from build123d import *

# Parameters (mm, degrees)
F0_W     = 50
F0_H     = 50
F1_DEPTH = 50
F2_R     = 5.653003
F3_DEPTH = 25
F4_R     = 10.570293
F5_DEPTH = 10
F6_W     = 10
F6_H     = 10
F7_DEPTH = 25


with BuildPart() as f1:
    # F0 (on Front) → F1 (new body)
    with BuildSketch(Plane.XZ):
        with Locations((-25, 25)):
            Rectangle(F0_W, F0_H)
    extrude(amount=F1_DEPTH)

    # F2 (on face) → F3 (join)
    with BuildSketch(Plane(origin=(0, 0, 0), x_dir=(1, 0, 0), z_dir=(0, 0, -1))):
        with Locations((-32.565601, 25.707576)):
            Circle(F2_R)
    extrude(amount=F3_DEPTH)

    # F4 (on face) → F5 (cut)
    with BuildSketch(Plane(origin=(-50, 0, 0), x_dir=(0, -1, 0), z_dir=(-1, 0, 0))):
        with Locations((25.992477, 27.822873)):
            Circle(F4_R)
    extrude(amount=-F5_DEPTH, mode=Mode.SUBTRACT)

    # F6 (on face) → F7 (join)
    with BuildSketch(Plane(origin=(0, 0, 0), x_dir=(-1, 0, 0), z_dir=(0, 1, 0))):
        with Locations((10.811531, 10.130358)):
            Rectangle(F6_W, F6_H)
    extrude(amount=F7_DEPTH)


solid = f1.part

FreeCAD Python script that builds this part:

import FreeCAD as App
import Part
import Sketcher
Q = App.Units.Quantity

doc = App.newDocument("Part")
body = doc.addObject("PartDesign::Body", "Body")

sketch1 = doc.addObject("Sketcher::SketchObject", "Sketch")
body.addObject(sketch1)
sketch1.AttachmentSupport = (doc.XZ_Plane, [""])
sketch1.MapMode = "FlatFace"
sketch1.addGeometry(Part.LineSegment(App.Vector(-50, 50, 0), App.Vector(-50, 0, 0)), False)
sketch1.addGeometry(Part.LineSegment(App.Vector(-50, 0, 0), App.Vector(0, 0, 0)), False)
sketch1.addGeometry(Part.LineSegment(App.Vector(0, 0, 0), App.Vector(0, 50, 0)), False)
sketch1.addGeometry(Part.LineSegment(App.Vector(0, 50, 0), App.Vector(-50, 50, 0)), False)
sketch1.addConstraint(Sketcher.Constraint("Coincident", 0, 2, 1, 1))
sketch1.addConstraint(Sketcher.Constraint("Coincident", 1, 2, 2, 1))
sketch1.addConstraint(Sketcher.Constraint("Coincident", 2, 2, 3, 1))
sketch1.addConstraint(Sketcher.Constraint("Coincident", 3, 2, 0, 1))
sketch1.addConstraint(Sketcher.Constraint("Vertical", 0))
sketch1.addConstraint(Sketcher.Constraint("Horizontal", 1))
sketch1.addConstraint(Sketcher.Constraint("Vertical", 2))
sketch1.addConstraint(Sketcher.Constraint("Horizontal", 3))
sketch1.addConstraint(Sketcher.Constraint("Coincident", 1, 2, -1, 1))
sketch1.addConstraint(Sketcher.Constraint("Equal", 3, 0))
sketch1.addConstraint(Sketcher.Constraint("DistanceX", 1, 1, 1, 2, Q("50 mm")))
pad1 = doc.addObject("PartDesign::Pad", "Pad")
body.addObject(pad1)
pad1.Profile = sketch1
pad1.Length = 50

sketch2 = doc.addObject("Sketcher::SketchObject", "Sketch001")
body.addObject(sketch2)
sketch2.AttachmentSupport = (doc.XY_Plane, [""])
sketch2.MapMode = "FlatFace"
sketch2.addGeometry(Part.Circle(App.Vector(-32.565601, -25.707576, 0), App.Vector(0, 0, 1), 5.653003), False)
sketch2.addConstraint(Sketcher.Constraint("Diameter", 0, Q("11.306006 mm")))
sketch2.addConstraint(Sketcher.Constraint("DistanceX", 0, 3, -1, 1, Q("32.565601 mm")))
sketch2.addConstraint(Sketcher.Constraint("DistanceY", 0, 3, -1, 1, Q("25.707576 mm")))
pad2 = doc.addObject("PartDesign::Pad", "Pad001")
body.addObject(pad2)
pad2.Profile = sketch2
pad2.Length = 25
pad2.Reversed = True

sketch3 = doc.addObject("Sketcher::SketchObject", "Sketch002")
body.addObject(sketch3)
sketch3.AttachmentSupport = (doc.YZ_Plane, [""])
sketch3.MapMode = "FlatFace"
sketch3.AttachmentOffset = App.Placement(App.Vector(0, 0, -50), App.Rotation())
sketch3.addGeometry(Part.Circle(App.Vector(-25.992477, 27.822873, 0), App.Vector(0, 0, 1), 10.570293), False)
sketch3.addConstraint(Sketcher.Constraint("Diameter", 0, Q("21.140586 mm")))
sketch3.addConstraint(Sketcher.Constraint("DistanceX", 0, 3, -1, 1, Q("25.992477 mm")))
sketch3.addConstraint(Sketcher.Constraint("DistanceY", -1, 1, 0, 3, Q("27.822873 mm")))
pocket1 = doc.addObject("PartDesign::Pocket", "Pocket")
body.addObject(pocket1)
pocket1.Profile = sketch3
pocket1.Length = 10
pocket1.Reversed = True

sketch4 = doc.addObject("Sketcher::SketchObject", "Sketch003")
body.addObject(sketch4)
sketch4.AttachmentSupport = (doc.XZ_Plane, [""])
sketch4.MapMode = "FlatFace"
sketch4.addGeometry(Part.LineSegment(App.Vector(-5.811531, 15.130358, 0), App.Vector(-5.811531, 5.130358, 0)), False)
sketch4.addGeometry(Part.LineSegment(App.Vector(-5.811531, 5.130358, 0), App.Vector(-15.811531, 5.130358, 0)), False)
sketch4.addGeometry(Part.LineSegment(App.Vector(-15.811531, 5.130358, 0), App.Vector(-15.811531, 15.130358, 0)), False)
sketch4.addGeometry(Part.LineSegment(App.Vector(-15.811531, 15.130358, 0), App.Vector(-5.811531, 15.130358, 0)), False)
sketch4.addConstraint(Sketcher.Constraint("Coincident", 0, 2, 1, 1))
sketch4.addConstraint(Sketcher.Constraint("Coincident", 1, 2, 2, 1))
sketch4.addConstraint(Sketcher.Constraint("Coincident", 2, 2, 3, 1))
sketch4.addConstraint(Sketcher.Constraint("Coincident", 3, 2, 0, 1))
sketch4.addConstraint(Sketcher.Constraint("Vertical", 0))
sketch4.addConstraint(Sketcher.Constraint("Horizontal", 1))
sketch4.addConstraint(Sketcher.Constraint("Vertical", 2))
sketch4.addConstraint(Sketcher.Constraint("Horizontal", 3))
sketch4.addConstraint(Sketcher.Constraint("Equal", 3, 0))
sketch4.addConstraint(Sketcher.Constraint("DistanceX", 1, 2, 1, 1, Q("10 mm")))
sketch4.addConstraint(Sketcher.Constraint("DistanceX", 0, 2, -1, 1, Q("5.811531 mm")))
sketch4.addConstraint(Sketcher.Constraint("DistanceY", -1, 1, 0, 2, Q("5.130358 mm")))
pad3 = doc.addObject("PartDesign::Pad", "Pad002")
body.addObject(pad3)
pad3.Profile = sketch4
pad3.Length = 25
pad3.Reversed = True

doc.recompute()
